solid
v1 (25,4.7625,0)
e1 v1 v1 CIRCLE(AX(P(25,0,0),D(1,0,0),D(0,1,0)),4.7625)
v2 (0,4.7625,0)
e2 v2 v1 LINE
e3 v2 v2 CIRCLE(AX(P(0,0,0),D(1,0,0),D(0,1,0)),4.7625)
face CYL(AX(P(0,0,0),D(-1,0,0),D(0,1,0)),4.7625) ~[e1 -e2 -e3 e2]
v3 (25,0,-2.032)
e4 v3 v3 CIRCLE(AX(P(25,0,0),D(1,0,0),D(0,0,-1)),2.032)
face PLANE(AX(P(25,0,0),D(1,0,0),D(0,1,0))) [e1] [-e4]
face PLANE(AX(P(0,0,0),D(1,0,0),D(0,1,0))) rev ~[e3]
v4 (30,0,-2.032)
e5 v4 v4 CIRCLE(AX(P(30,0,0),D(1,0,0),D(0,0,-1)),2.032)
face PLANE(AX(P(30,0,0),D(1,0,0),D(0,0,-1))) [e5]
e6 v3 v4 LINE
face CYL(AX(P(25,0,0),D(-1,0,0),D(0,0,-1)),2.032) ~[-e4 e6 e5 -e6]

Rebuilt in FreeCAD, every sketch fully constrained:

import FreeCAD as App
import Part
import Sketcher

V = App.Vector
Q = App.Units.Quantity

doc = App.newDocument("Part")
body = doc.addObject("PartDesign::Body", "Body")

sketch1 = body.newObject("Sketcher::SketchObject", "Sketch")
sketch1.AttachmentSupport = (doc.getObject("YZ_Plane"), [""])
sketch1.MapMode = "FlatFace"
sketch1.addGeometry(Part.Circle(V(0, 0, 0), V(0, 0, 1), 4.8), False)
sketch1.addConstraint(Sketcher.Constraint("Coincident", 0, 3, -1, 1))
sketch1.addConstraint(Sketcher.Constraint("Diameter", 0, Q("9.525 mm")))
pad1 = body.newObject("PartDesign::Pad", "Pad")
pad1.Profile = sketch1
pad1.Length = 25

sketch2 = body.newObject("Sketcher::SketchObject", "Sketch001")
sketch2.AttachmentSupport = (doc.getObject("YZ_Plane"), [""])
sketch2.MapMode = "FlatFace"
sketch2.AttachmentOffset = App.Placement(V(0, 0, 25), App.Rotation())
sketch2.addGeometry(Part.Circle(V(0, 0, 0), V(0, 0, 1), 2), False)
sketch2.addConstraint(Sketcher.Constraint("Coincident", 0, 3, -1, 1))
sketch2.addConstraint(Sketcher.Constraint("Diameter", 0, Q("4.064 mm")))
pad2 = body.newObject("PartDesign::Pad", "Pad001")
pad2.Profile = sketch2
pad2.Length = 5

doc.recompute()
